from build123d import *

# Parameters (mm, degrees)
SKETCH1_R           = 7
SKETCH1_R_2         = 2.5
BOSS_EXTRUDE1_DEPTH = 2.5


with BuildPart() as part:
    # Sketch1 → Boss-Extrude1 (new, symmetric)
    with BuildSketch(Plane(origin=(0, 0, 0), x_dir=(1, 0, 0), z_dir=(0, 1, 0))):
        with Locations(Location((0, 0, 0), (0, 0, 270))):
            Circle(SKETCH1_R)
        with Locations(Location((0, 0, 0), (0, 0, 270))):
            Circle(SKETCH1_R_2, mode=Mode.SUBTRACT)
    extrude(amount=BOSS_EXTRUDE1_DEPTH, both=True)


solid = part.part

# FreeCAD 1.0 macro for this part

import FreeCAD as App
import Part
import Sketcher
Q = App.Units.Quantity

doc = App.newDocument("Part")
body = doc.addObject("PartDesign::Body", "Body")

# Sketch on XZ plane
sketch1 = body.newObject("Sketcher::SketchObject", "Sketch")
sketch1.AttachmentSupport = (doc.getObject("XZ_Plane"), [""])
sketch1.MapMode = "FlatFace"
sketch1.addGeometry([
    Part.Circle(App.Vector(0, 0, 0), App.Vector(0, 0, 1), 7),
    Part.Circle(App.Vector(0, 0, 0), App.Vector(0, 0, 1), 2.5),
], False)
sketch1.addConstraint([
    Sketcher.Constraint("Coincident", 0, 3, -1, 1),
    Sketcher.Constraint("Coincident", 1, 3, -1, 1),
    Sketcher.Constraint("Diameter", 0, Q("14 mm")),
    Sketcher.Constraint("Diameter", 1, Q("5 mm")),
])
pad1 = body.newObject("PartDesign::Pad", "Pad")
pad1.Profile = sketch1
pad1.Length = 5
pad1.Midplane = True

doc.recompute()
